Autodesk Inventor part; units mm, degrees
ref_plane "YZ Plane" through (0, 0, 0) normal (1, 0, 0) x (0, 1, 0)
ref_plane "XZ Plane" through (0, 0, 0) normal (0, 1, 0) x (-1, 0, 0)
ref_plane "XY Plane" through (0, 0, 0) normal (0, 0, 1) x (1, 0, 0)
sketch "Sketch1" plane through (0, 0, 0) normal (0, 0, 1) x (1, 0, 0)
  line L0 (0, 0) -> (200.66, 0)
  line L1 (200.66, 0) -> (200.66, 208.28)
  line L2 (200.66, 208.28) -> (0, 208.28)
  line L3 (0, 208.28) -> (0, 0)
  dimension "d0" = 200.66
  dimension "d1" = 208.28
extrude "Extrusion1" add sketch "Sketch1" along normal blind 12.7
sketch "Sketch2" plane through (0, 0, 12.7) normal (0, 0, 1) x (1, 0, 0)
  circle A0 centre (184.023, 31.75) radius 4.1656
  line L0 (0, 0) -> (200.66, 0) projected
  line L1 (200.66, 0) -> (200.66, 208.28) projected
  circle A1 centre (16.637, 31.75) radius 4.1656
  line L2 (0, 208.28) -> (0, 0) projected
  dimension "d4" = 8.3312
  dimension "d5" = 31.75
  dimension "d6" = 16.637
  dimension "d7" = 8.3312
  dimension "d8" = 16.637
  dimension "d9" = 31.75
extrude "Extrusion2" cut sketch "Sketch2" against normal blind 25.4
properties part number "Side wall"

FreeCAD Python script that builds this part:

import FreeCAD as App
import Part
import Sketcher
from FreeCAD import Vector
Q = App.Units.Quantity

doc = App.newDocument("Part")
body = doc.addObject("PartDesign::Body", "Body")

# Sketch on XY plane
sketch1 = doc.addObject("Sketcher::SketchObject", "Sketch")
body.addObject(sketch1)
sketch1.AttachmentSupport = (doc.XY_Plane, [""])
sketch1.MapMode = "FlatFace"
sketch1.addGeometry([
    Part.LineSegment(Vector(0, 208, 0), Vector(0, 0, 0)),
    Part.LineSegment(Vector(0, 0, 0), Vector(201, 0, 0)),
    Part.LineSegment(Vector(201, 0, 0), Vector(201, 208, 0)),
    Part.LineSegment(Vector(201, 208, 0), Vector(0, 208, 0)),
], False)
sketch1.addConstraint([
    Sketcher.Constraint("Coincident", 0, 2, 1, 1),
    Sketcher.Constraint("Coincident", 1, 2, 2, 1),
    Sketcher.Constraint("Coincident", 2, 2, 3, 1),
    Sketcher.Constraint("Coincident", 3, 2, 0, 1),
    Sketcher.Constraint("Vertical", 0),
    Sketcher.Constraint("Horizontal", 1),
    Sketcher.Constraint("Vertical", 2),
    Sketcher.Constraint("Horizontal", 3),
    Sketcher.Constraint("Coincident", 0, 2, -1, 1),
    Sketcher.Constraint("DistanceX", 1, 1, 1, 2, Q("7.9 in")),
    Sketcher.Constraint("DistanceY", 0, 2, 0, 1, Q("8.2 in")),
])
pad1 = doc.addObject("PartDesign::Pad", "Pad")
body.addObject(pad1)
pad1.Profile = sketch1
pad1.Length = Q("0.5 in")

# Sketch on XY plane
sketch2 = doc.addObject("Sketcher::SketchObject", "Sketch001")
body.addObject(sketch2)
sketch2.AttachmentSupport = (doc.XY_Plane, [""])
sketch2.MapMode = "FlatFace"
sketch2.AttachmentOffset = App.Placement(Vector(0, 0, 0.5 * 25.4), App.Rotation())
sketch2.addGeometry([
    Part.Circle(Vector(184, 31.8, 0), Vector(0, 0, 1), 4.2),
    Part.Circle(Vector(16.6, 31.8, 0), Vector(0, 0, 1), 4.2),
], False)
sketch2.addConstraint([
    Sketcher.Constraint("Equal", 0, 1),
    Sketcher.Constraint("Horizontal", 0, 3, 1, 3),
    Sketcher.Constraint("Diameter", 0, Q("0.328 in")),
    Sketcher.Constraint("DistanceY", -1, 1, 0, 3, Q("1.25 in")),
    Sketcher.Constraint("DistanceX", -1, 1, 1, 3, Q("0.655 in")),
    Sketcher.Constraint("DistanceX", 1, 3, 0, 3, Q("6.59 in")),
])
pocket1 = doc.addObject("PartDesign::Pocket", "Pocket")
body.addObject(pocket1)
pocket1.Profile = sketch2
pocket1.Length = Q("1 in")

doc.recompute()
